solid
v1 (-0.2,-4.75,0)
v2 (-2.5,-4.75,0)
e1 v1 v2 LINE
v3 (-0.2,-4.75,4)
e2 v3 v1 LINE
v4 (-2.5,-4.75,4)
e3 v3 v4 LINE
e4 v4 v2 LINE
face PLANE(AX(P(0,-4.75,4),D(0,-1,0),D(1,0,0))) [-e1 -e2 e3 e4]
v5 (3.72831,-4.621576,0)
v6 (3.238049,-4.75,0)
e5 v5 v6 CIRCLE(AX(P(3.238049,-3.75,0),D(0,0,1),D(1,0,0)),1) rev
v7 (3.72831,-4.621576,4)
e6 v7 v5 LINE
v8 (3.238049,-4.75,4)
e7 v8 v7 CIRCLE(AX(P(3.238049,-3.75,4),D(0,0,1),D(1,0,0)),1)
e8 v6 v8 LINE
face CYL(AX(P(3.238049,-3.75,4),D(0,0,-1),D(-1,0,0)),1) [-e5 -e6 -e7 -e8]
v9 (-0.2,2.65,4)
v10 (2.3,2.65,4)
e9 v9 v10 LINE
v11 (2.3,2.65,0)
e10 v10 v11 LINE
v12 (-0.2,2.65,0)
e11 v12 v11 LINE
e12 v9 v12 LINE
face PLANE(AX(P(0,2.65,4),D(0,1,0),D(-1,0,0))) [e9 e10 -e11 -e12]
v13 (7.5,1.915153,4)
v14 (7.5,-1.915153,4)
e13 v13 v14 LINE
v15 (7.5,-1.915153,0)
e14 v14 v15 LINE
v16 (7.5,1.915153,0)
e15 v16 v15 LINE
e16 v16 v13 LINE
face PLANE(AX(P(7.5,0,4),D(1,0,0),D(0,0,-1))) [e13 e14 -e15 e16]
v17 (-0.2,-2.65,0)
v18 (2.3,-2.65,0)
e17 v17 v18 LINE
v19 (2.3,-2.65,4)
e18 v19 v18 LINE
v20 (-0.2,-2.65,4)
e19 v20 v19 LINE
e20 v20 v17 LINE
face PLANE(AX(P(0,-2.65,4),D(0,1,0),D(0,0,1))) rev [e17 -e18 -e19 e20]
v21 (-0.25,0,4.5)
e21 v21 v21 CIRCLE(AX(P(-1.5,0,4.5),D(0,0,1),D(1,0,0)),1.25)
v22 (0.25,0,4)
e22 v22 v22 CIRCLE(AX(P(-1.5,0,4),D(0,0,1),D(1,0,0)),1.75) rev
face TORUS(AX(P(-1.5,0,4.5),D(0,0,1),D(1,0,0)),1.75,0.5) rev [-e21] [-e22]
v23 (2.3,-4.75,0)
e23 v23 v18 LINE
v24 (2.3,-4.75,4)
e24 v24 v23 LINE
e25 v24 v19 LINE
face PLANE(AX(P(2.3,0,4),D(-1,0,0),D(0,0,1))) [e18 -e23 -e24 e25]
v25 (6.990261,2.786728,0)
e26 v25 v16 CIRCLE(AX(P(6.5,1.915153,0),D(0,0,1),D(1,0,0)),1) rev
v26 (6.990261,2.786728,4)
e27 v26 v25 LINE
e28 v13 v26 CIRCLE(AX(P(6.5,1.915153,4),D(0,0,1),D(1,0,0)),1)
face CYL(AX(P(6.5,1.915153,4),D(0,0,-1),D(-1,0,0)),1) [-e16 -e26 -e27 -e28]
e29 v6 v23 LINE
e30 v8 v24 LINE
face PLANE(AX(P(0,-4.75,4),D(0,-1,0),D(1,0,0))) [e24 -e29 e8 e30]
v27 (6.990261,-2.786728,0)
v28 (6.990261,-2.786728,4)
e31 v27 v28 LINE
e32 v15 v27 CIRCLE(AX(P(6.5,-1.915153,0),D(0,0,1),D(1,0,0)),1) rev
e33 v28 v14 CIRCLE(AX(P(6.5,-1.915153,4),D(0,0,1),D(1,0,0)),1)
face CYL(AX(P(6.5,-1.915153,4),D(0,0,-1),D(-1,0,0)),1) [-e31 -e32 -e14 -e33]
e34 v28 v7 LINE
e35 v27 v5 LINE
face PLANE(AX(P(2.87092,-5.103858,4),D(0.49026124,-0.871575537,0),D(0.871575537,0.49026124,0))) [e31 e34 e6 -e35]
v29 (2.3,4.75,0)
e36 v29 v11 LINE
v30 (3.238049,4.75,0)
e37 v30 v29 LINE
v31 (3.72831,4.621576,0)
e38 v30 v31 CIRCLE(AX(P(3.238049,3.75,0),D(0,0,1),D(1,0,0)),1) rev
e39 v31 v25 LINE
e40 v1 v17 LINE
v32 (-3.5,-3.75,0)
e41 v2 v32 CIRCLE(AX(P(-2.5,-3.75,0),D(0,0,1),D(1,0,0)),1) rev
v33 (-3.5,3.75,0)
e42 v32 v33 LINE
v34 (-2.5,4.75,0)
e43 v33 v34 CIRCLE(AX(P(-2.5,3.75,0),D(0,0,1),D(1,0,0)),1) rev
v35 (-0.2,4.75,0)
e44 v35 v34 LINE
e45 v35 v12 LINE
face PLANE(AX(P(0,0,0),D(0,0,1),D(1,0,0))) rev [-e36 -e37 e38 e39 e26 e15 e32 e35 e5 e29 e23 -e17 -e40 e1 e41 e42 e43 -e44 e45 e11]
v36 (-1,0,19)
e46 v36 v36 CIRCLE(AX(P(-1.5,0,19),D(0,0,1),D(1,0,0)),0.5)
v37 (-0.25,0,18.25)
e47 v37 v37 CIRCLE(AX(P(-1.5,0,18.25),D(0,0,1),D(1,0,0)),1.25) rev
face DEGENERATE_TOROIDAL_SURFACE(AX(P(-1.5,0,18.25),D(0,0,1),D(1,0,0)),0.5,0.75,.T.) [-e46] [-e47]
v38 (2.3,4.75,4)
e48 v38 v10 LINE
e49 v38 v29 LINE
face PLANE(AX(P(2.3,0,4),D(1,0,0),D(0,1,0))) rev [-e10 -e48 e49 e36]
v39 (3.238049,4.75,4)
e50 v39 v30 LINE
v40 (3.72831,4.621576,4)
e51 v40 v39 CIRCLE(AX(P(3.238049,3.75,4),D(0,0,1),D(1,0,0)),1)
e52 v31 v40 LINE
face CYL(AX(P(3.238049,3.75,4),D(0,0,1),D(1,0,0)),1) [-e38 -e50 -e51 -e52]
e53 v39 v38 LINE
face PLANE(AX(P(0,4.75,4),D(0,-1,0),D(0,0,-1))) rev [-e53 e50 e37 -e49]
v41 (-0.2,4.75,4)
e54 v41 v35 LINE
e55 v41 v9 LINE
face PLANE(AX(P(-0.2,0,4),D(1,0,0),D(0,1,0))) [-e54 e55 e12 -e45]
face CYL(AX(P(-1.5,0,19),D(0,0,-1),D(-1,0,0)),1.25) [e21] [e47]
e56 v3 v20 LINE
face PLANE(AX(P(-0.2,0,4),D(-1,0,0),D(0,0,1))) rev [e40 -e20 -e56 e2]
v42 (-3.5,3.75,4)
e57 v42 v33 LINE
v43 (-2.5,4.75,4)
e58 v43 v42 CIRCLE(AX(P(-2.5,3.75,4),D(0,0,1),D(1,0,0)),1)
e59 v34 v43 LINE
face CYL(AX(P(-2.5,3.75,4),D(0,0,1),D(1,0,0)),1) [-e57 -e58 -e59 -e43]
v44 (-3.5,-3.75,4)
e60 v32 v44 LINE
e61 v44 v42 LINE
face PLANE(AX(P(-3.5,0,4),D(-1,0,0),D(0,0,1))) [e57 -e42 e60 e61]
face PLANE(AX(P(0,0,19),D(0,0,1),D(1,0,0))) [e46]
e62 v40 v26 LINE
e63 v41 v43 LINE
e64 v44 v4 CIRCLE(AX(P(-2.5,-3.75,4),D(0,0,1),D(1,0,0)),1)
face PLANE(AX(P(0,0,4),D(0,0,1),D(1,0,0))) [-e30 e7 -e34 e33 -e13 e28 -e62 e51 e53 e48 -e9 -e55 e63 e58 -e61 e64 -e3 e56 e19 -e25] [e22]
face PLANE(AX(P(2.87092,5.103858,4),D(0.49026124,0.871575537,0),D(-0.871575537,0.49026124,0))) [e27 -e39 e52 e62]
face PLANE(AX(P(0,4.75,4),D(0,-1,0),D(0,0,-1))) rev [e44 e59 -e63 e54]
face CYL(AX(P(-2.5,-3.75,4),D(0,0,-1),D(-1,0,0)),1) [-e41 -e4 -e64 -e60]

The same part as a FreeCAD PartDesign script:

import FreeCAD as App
import Part
import Sketcher
from FreeCAD import Vector


def edges_at(feature, points):
    """Names of the edges that pass closest to the given points."""
    edges = feature.Shape.Edges
    near = lambda p: min(range(len(edges)), key=lambda i: edges[i].distToShape(Part.Vertex(*p))[0])
    return sorted({f"Edge{near(p) + 1}" for p in points})

doc = App.newDocument("Part")
body = doc.addObject("PartDesign::Body", "Body")

# Sketch on XY plane
sketch1 = body.newObject("Sketcher::SketchObject", "Sketch")
sketch1.AttachmentSupport = (doc.getObject("XY_Plane"), [""])
sketch1.MapMode = "FlatFace"
sketch1.addGeometry(Part.LineSegment(Vector(2.3, -4.8, 0), Vector(3.5, -4.8, 0)), False)
sketch1.addGeometry(Part.LineSegment(Vector(3.5, -4.8, 0), Vector(3.5, 4.8, 0)), False)
sketch1.addGeometry(Part.LineSegment(Vector(3.5, 4.8, 0), Vector(2.3, 4.8, 0)), False)
sketch1.addGeometry(Part.LineSegment(Vector(2.3, 4.8, 0), Vector(2.3, 2.6, 0)), False)
sketch1.addGeometry(Part.LineSegment(Vector(2.3, 2.6, 0), Vector(-0.2, 2.6, 0)), False)
sketch1.addGeometry(Part.LineSegment(Vector(-0.2, 2.6, 0), Vector(-0.2, 4.8, 0)), False)
sketch1.addGeometry(Part.LineSegment(Vector(-0.2, 4.8, 0), Vector(-3.5, 4.8, 0)), False)
sketch1.addGeometry(Part.LineSegment(Vector(-3.5, 4.8, 0), Vector(-3.5, -4.8, 0)), False)
sketch1.addGeometry(Part.LineSegment(Vector(-3.5, -4.8, 0), Vector(-0.2, -4.8, 0)), False)
sketch1.addGeometry(Part.LineSegment(Vector(-0.2, -4.8, 0), Vector(-0.2, -2.6, 0)), False)
sketch1.addGeometry(Part.LineSegment(Vector(-0.2, -2.6, 0), Vector(2.3, -2.6, 0)), False)
sketch1.addGeometry(Part.LineSegment(Vector(2.3, -2.6, 0), Vector(2.3, -4.8, 0)), False)
sketch1.addConstraint(Sketcher.Constraint("Coincident", 0, 2, 1, 1))
sketch1.addConstraint(Sketcher.Constraint("Coincident", 1, 2, 2, 1))
sketch1.addConstraint(Sketcher.Constraint("Coincident", 2, 2, 3, 1))
sketch1.addConstraint(Sketcher.Constraint("Coincident", 3, 2, 4, 1))
sketch1.addConstraint(Sketcher.Constraint("Coincident", 4, 2, 5, 1))
sketch1.addConstraint(Sketcher.Constraint("Coincident", 5, 2, 6, 1))
sketch1.addConstraint(Sketcher.Constraint("Coincident", 6, 2, 7, 1))
sketch1.addConstraint(Sketcher.Constraint("Coincident", 7, 2, 8, 1))
sketch1.addConstraint(Sketcher.Constraint("Coincident", 8, 2, 9, 1))
sketch1.addConstraint(Sketcher.Constraint("Coincident", 9, 2, 10, 1))
sketch1.addConstraint(Sketcher.Constraint("Coincident", 10, 2, 11, 1))
sketch1.addConstraint(Sketcher.Constraint("Coincident", 11, 2, 0, 1))
sketch1.addConstraint(Sketcher.Constraint("Horizontal", 0))
sketch1.addConstraint(Sketcher.Constraint("Vertical", 1))
sketch1.addConstraint(Sketcher.Constraint("Horizontal", 2))
sketch1.addConstraint(Sketcher.Constraint("Vertical", 3))
sketch1.addConstraint(Sketcher.Constraint("Horizontal", 4))
sketch1.addConstraint(Sketcher.Constraint("Vertical", 5))
sketch1.addConstraint(Sketcher.Constraint("Horizontal", 6))
sketch1.addConstraint(Sketcher.Constraint("Vertical", 7))
sketch1.addConstraint(Sketcher.Constraint("Horizontal", 8))
sketch1.addConstraint(Sketcher.Constraint("Vertical", 9))
sketch1.addConstraint(Sketcher.Constraint("Horizontal", 10))
sketch1.addConstraint(Sketcher.Constraint("Vertical", 11))
sketch1.addConstraint(Sketcher.Constraint("Symmetric", 0, 2, 6, 2, -1, 1))
sketch1.addConstraint(Sketcher.Constraint("Symmetric", 5, 2, 8, 2, -1))
sketch1.addConstraint(Sketcher.Constraint("Symmetric", 3, 2, 10, 2, -1))
sketch1.addConstraint(Sketcher.Constraint("Horizontal", 2, 2, 5, 2))
sketch1.addConstraint(Sketcher.Constraint("DistanceX", 0, 1, 0, 2, 1.2))
sketch1.addConstraint(Sketcher.Constraint("DistanceX", 4, 2, 4, 1, 2.5))
sketch1.addConstraint(Sketcher.Constraint("DistanceX", 6, 2, 6, 1, 3.3))
sketch1.addConstraint(Sketcher.Constraint("DistanceY", 1, 1, 1, 2, 9.5))
sketch1.addConstraint(Sketcher.Constraint("DistanceY", 3, 2, 3, 1, 2.1))
pad1 = body.newObject("PartDesign::Pad", "Pad")
pad1.Profile = sketch1
pad1.Length = 4

# Sketch on XY plane
sketch2 = body.newObject("Sketcher::SketchObject", "Sketch001")
sketch2.AttachmentSupport = (doc.getObject("XY_Plane"), [""])
sketch2.MapMode = "FlatFace"
sketch2.addGeometry(Part.LineSegment(Vector(7.5, 2.5, 0), Vector(7.5, -2.5, 0)), False)
sketch2.addGeometry(Part.LineSegment(Vector(7.5, -2.5, 0), Vector(3.5, -4.8, 0)), False)
sketch2.addGeometry(Part.LineSegment(Vector(3.5, -4.8, 0), Vector(3.5, 4.8, 0)), False)
sketch2.addGeometry(Part.LineSegment(Vector(3.5, 4.8, 0), Vector(7.5, 2.5, 0)), False)
sketch2.addConstraint(Sketcher.Constraint("Coincident", 0, 2, 1, 1))
sketch2.addConstraint(Sketcher.Constraint("Coincident", 1, 2, 2, 1))
sketch2.addConstraint(Sketcher.Constraint("Coincident", 2, 2, 3, 1))
sketch2.addConstraint(Sketcher.Constraint("Coincident", 3, 2, 0, 1))
sketch2.addConstraint(Sketcher.Constraint("Vertical", 0))
sketch2.addConstraint(Sketcher.Constraint("Vertical", 2))
sketch2.addConstraint(Sketcher.Constraint("Equal", 1, 3))
sketch2.addConstraint(Sketcher.Constraint("DistanceY", 0, 2, 0, 1, 5.0))
sketch2.addConstraint(Sketcher.Constraint("DistanceY", 2, 1, 2, 2, 9.5))
sketch2.addConstraint(Sketcher.Constraint("DistanceX", 1, 2, 0, 2, 4.0))
sketch2.addConstraint(Sketcher.Constraint("DistanceX", -1, 1, 0, 2, 7.5))
sketch2.addConstraint(Sketcher.Constraint("DistanceY", 0, 2, -1, 1, 2.5))
pad2 = body.newObject("PartDesign::Pad", "Pad001")
pad2.Profile = sketch2
pad2.Length = 4

# Sketch on XY plane
sketch3 = body.newObject("Sketcher::SketchObject", "Sketch002")
sketch3.AttachmentSupport = (doc.getObject("XY_Plane"), [""])
sketch3.MapMode = "FlatFace"
sketch3.AttachmentOffset = App.Placement(Vector(0, 0, 4), App.Rotation())
sketch3.addGeometry(Part.Circle(Vector(-1.5, 0, 0), Vector(0, 0, 1), 1.2), False)
sketch3.addConstraint(Sketcher.Constraint("PointOnObject", 0, 3, -1))
sketch3.addConstraint(Sketcher.Constraint("Diameter", 0, 2.5))
sketch3.addConstraint(Sketcher.Constraint("DistanceX", 0, 3, -1, 1, 1.5))
pad3 = body.newObject("PartDesign::Pad", "Pad002")
pad3.Profile = sketch3
pad3.Length = 15
doc.recompute()

fillet = body.newObject("PartDesign::Fillet", "Fillet")
fillet.Base = (pad3, edges_at(pad3, [
    (-3.5, -4.75, 2),
    (-3.5, 4.75, 2),
    (3.5, 4.75, 2),
    (3.5, -4.75, 2),
    (7.5, -2.5, 2),
    (7.5, 2.5, 2),
]))
fillet.Radius = 1
doc.recompute()

fillet2 = body.newObject("PartDesign::Fillet", "Fillet001")
fillet2.Base = (fillet, edges_at(fillet, [(-2.75, 0, 4)]))
fillet2.Radius = 0.5
doc.recompute()

fillet3 = body.newObject("PartDesign::Fillet", "Fillet002")
fillet3.Base = (fillet2, edges_at(fillet2, [(-2.75, 0, 19)]))
fillet3.Radius = 0.75

doc.recompute()
